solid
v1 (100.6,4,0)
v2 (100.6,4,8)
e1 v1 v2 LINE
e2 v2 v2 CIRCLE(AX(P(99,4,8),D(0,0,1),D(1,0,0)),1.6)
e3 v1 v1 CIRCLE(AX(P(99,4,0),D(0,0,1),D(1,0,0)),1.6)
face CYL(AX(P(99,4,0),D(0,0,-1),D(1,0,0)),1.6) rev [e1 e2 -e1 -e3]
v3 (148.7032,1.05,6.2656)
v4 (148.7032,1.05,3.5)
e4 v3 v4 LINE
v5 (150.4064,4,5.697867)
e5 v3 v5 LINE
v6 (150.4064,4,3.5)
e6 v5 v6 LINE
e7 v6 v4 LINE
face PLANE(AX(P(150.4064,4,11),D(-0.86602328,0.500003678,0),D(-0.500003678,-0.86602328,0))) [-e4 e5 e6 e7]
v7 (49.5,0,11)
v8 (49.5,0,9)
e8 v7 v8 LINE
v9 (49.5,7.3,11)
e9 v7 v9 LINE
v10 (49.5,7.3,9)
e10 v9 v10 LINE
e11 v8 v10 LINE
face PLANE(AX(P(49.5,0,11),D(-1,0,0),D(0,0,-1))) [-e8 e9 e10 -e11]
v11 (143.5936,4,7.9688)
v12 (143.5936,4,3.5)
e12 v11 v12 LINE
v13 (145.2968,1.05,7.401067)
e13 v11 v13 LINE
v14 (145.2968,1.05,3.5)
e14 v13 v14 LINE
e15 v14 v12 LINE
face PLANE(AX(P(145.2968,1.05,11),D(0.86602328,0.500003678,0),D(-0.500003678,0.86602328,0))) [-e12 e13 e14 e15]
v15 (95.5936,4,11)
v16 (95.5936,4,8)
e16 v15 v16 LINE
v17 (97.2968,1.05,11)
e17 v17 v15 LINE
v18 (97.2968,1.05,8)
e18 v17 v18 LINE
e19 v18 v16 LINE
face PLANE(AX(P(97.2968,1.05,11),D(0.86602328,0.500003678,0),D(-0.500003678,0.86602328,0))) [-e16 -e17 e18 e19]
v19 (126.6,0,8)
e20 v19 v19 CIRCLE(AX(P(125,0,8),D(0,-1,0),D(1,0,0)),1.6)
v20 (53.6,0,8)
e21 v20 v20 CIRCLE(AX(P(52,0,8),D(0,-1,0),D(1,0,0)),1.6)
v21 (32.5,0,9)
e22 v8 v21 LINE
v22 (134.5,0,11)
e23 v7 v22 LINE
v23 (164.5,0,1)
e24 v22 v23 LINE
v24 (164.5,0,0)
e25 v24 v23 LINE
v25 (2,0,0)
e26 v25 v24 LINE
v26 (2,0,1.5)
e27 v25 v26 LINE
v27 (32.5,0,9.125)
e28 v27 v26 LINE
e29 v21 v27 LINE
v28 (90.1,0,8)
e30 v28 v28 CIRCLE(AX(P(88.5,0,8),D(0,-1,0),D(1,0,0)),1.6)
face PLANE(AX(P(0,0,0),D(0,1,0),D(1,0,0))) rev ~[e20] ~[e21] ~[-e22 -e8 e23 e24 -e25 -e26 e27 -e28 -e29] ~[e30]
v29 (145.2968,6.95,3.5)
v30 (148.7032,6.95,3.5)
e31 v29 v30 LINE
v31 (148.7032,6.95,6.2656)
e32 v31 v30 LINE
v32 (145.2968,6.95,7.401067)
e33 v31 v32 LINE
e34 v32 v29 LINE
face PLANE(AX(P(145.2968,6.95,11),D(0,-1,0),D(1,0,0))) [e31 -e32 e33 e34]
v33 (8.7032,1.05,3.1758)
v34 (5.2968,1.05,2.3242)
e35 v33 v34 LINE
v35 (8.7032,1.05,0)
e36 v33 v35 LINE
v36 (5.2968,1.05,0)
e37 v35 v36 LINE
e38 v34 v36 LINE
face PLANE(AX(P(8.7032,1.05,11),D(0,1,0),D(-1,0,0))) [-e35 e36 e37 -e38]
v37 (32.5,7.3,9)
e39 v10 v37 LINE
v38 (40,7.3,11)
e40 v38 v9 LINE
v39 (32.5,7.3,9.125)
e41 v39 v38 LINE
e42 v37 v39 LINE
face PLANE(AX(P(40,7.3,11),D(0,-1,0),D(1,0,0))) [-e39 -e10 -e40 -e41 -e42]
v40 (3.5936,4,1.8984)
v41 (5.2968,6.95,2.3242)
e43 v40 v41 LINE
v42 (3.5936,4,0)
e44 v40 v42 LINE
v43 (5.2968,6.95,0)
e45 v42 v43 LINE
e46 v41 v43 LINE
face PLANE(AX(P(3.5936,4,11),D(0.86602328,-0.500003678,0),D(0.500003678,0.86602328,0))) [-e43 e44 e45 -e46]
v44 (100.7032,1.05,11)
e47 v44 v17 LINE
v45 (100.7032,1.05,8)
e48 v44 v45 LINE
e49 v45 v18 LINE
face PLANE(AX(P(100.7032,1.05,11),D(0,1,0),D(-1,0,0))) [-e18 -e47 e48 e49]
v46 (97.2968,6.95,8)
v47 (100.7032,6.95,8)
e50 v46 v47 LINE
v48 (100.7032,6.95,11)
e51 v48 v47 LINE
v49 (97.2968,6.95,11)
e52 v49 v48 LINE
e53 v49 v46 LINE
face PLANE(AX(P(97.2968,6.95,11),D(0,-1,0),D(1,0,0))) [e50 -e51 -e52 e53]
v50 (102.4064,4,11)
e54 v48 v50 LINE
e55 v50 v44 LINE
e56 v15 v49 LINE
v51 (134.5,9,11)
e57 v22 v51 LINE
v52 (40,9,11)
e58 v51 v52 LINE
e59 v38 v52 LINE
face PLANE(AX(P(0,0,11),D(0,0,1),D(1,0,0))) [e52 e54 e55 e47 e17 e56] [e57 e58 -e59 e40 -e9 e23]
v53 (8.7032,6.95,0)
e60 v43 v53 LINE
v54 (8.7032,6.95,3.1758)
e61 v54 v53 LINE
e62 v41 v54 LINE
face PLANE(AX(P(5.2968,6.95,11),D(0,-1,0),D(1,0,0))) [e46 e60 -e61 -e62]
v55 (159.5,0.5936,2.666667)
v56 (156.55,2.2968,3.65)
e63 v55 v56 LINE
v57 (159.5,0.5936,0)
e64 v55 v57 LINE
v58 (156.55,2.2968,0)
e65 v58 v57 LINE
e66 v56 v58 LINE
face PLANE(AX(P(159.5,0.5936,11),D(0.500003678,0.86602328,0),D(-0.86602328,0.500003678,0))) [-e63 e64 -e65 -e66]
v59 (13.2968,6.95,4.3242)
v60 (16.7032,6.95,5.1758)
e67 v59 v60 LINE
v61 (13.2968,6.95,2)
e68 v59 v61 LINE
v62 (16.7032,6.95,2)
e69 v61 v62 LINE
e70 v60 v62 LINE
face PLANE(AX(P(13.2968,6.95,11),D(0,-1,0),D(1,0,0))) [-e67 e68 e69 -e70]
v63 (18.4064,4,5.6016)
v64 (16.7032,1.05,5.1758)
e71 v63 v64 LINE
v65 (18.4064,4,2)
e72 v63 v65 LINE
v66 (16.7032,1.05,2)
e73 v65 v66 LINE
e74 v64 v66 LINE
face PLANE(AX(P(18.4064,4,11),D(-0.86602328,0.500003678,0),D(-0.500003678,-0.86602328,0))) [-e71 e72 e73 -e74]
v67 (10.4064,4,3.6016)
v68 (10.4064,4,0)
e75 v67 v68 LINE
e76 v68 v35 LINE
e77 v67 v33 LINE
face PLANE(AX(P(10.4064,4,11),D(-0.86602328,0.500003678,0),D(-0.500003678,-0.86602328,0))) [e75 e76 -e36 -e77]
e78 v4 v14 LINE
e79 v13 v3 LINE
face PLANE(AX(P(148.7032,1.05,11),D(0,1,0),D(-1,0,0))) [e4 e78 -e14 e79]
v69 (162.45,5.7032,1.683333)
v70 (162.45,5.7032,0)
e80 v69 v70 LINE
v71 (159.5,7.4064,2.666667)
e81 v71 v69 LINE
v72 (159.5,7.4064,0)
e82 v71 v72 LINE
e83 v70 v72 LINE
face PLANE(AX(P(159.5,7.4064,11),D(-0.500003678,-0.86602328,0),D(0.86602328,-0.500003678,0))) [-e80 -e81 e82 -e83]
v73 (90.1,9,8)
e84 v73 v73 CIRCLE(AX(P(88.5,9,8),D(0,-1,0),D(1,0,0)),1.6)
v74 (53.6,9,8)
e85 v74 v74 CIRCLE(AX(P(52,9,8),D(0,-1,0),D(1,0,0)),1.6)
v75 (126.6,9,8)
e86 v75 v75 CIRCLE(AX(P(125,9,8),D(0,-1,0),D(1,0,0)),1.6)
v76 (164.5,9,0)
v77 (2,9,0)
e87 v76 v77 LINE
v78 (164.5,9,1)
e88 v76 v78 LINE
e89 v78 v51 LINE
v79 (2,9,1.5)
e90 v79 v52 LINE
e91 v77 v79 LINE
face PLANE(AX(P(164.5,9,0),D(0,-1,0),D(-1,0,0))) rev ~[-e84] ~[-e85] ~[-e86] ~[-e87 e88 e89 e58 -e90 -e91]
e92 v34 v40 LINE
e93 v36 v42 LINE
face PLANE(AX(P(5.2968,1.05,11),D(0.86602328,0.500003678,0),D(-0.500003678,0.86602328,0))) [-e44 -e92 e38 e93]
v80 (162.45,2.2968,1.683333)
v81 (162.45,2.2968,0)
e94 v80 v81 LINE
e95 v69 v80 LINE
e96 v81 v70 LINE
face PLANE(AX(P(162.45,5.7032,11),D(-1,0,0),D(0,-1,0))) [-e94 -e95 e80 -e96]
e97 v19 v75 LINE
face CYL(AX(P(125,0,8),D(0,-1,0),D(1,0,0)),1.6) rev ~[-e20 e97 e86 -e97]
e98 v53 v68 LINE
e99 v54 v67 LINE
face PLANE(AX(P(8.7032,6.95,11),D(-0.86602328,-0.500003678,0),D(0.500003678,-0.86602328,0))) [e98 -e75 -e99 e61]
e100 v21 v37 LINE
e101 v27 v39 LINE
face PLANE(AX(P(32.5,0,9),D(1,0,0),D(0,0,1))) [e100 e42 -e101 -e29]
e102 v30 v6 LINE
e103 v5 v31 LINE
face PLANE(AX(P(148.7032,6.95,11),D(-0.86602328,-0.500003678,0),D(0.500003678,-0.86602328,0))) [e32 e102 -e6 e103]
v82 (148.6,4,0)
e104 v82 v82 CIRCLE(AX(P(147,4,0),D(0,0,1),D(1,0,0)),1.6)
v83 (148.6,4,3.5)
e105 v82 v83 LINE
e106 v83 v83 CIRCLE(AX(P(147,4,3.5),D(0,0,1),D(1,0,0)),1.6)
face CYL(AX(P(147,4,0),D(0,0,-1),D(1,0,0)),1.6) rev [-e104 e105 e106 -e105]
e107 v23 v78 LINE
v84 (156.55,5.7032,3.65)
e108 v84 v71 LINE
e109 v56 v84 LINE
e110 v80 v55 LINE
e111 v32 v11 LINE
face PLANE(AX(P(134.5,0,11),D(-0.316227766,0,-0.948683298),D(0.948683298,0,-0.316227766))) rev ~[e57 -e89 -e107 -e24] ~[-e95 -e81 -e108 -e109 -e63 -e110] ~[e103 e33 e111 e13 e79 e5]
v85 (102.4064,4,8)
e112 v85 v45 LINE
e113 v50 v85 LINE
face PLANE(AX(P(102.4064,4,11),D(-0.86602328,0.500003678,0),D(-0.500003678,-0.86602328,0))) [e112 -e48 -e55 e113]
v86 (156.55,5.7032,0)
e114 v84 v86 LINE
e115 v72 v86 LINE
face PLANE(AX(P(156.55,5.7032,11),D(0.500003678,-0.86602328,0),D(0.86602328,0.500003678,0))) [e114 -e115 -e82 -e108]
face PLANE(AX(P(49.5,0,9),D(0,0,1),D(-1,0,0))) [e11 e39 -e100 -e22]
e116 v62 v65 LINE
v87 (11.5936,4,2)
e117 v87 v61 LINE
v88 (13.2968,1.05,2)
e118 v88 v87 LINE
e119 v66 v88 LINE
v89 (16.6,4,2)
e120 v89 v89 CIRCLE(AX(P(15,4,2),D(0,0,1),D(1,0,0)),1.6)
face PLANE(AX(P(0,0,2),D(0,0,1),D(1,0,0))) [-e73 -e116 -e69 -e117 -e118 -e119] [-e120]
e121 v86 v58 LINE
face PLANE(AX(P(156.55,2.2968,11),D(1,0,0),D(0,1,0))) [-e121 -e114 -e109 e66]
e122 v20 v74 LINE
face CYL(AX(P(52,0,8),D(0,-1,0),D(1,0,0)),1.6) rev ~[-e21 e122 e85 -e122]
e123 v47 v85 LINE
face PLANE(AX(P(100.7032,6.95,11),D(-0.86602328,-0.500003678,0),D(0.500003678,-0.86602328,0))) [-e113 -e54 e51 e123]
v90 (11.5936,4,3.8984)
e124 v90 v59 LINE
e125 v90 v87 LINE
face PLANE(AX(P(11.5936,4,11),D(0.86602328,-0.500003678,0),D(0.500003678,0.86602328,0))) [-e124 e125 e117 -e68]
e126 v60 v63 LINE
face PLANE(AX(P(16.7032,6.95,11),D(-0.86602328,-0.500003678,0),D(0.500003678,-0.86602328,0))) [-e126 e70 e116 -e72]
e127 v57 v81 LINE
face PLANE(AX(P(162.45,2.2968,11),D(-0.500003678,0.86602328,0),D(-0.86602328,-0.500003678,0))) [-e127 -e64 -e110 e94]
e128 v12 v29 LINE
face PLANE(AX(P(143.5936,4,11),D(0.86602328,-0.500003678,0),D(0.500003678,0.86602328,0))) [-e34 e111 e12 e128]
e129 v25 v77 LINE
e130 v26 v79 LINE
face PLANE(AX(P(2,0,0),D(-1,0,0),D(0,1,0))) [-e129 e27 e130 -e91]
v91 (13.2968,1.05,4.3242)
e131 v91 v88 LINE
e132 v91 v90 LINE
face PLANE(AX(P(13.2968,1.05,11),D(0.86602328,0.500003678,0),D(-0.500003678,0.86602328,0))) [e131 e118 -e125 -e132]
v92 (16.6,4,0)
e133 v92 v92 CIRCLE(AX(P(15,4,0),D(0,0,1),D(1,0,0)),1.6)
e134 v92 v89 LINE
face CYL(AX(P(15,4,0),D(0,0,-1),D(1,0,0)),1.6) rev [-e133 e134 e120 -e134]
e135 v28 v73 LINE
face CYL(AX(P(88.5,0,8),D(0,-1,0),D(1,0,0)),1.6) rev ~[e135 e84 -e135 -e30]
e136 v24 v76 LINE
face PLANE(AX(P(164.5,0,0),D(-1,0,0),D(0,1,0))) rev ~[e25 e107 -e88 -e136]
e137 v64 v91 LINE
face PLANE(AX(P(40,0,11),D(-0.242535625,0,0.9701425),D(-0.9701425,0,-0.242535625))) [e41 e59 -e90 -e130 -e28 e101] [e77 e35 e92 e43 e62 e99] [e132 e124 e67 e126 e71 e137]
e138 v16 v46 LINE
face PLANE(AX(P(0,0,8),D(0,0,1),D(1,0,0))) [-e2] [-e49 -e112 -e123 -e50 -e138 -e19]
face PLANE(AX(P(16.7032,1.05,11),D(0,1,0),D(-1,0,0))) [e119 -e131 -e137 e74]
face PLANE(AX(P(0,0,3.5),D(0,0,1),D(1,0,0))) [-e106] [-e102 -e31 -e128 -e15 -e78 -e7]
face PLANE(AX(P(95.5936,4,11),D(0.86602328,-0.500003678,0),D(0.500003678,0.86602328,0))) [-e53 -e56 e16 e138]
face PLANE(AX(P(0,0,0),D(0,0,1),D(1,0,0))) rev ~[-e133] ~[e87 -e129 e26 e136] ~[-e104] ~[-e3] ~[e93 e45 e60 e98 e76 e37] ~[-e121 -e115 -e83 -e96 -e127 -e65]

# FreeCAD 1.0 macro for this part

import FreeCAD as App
import Part
import Sketcher

V = App.Vector
Q = App.Units.Quantity

doc = App.newDocument("Part")
body = doc.addObject("PartDesign::Body", "Body")

sketch1 = doc.addObject("Sketcher::SketchObject", "Sketch")
body.addObject(sketch1)
sketch1.AttachmentSupport = (doc.XY_Plane, [""])
sketch1.MapMode = "FlatFace"
sketch1.addGeometry(Part.LineSegment(V(0, 9, 0), V(0, 0, 0)), False)
sketch1.addGeometry(Part.LineSegment(V(0, 0, 0), V(164.5, 0, 0)), False)
sketch1.addGeometry(Part.LineSegment(V(164.5, 0, 0), V(164.5, 9, 0)), False)
sketch1.addGeometry(Part.LineSegment(V(164.5, 9, 0), V(0, 9, 0)), False)
sketch1.addGeometry(Part.Circle(V(7, 4, 0), V(0, 0, 1), 1.6), False)
sketch1.addGeometry(Part.Circle(V(15, 4, 0), V(0, 0, 1), 1.6), False)
sketch1.addGeometry(Part.Circle(V(99, 4, 0), V(0, 0, 1), 1.6), False)
sketch1.addGeometry(Part.Circle(V(147, 4, 0), V(0, 0, 1), 1.6), False)
sketch1.addGeometry(Part.Circle(V(159.5, 4, 0), V(0, 0, 1), 1.6), False)
sketch1.addConstraint(Sketcher.Constraint("Coincident", 0, 2, 1, 1))
sketch1.addConstraint(Sketcher.Constraint("Coincident", 1, 2, 2, 1))
sketch1.addConstraint(Sketcher.Constraint("Coincident", 2, 2, 3, 1))
sketch1.addConstraint(Sketcher.Constraint("Coincident", 3, 2, 0, 1))
sketch1.addConstraint(Sketcher.Constraint("Vertical", 0))
sketch1.addConstraint(Sketcher.Constraint("Horizontal", 1))
sketch1.addConstraint(Sketcher.Constraint("Vertical", 2))
sketch1.addConstraint(Sketcher.Constraint("Horizontal", 3))
sketch1.addConstraint(Sketcher.Constraint("Coincident", 0, 2, -1, 1))
sketch1.addConstraint(Sketcher.Constraint("Equal", 4, 5))
sketch1.addConstraint(Sketcher.Constraint("Equal", 5, 6))
sketch1.addConstraint(Sketcher.Constraint("Equal", 6, 7))
sketch1.addConstraint(Sketcher.Constraint("Equal", 7, 8))
sketch1.addConstraint(Sketcher.Constraint("Horizontal", 4, 3, 5, 3))
sketch1.addConstraint(Sketcher.Constraint("Horizontal", 5, 3, 6, 3))
sketch1.addConstraint(Sketcher.Constraint("Horizontal", 6, 3, 7, 3))
sketch1.addConstraint(Sketcher.Constraint("Horizontal", 7, 3, 8, 3))
sketch1.addConstraint(Sketcher.Constraint("Diameter", 4, 3.2))
sketch1.addConstraint(Sketcher.Constraint("DistanceY", 0, 2, 0, 1, 9.0))
sketch1.addConstraint(Sketcher.Constraint("DistanceY", -1, 1, 4, 3, 4.0))
sketch1.addConstraint(Sketcher.Constraint("DistanceX", -1, 1, 5, 3, 15.0))
sketch1.addConstraint(Sketcher.Constraint("DistanceX", 4, 3, 5, 3, 8.0))
sketch1.addConstraint(Sketcher.Constraint("DistanceX", 6, 3, 7, 3, 48.0))
sketch1.addConstraint(Sketcher.Constraint("DistanceX", 8, 3, 1, 2, 5.0))
sketch1.addConstraint(Sketcher.Constraint("DistanceX", 7, 3, 8, 3, 12.5))
sketch1.addConstraint(Sketcher.Constraint("DistanceX", 1, 1, 1, 2, 164.5))
pad1 = doc.addObject("PartDesign::Pad", "Pad")
body.addObject(pad1)
pad1.Profile = sketch1
pad1.Length = 11

sketch2 = doc.addObject("Sketcher::SketchObject", "Sketch001")
body.addObject(sketch2)
sketch2.AttachmentSupport = (doc.XZ_Plane, [""])
sketch2.MapMode = "FlatFace"
sketch2.addGeometry(Part.Circle(V(52, 8, 0), V(0, 0, 1), 1.6), False)
sketch2.addGeometry(Part.Circle(V(125, 8, 0), V(0, 0, 1), 1.6), False)
sketch2.addGeometry(Part.Circle(V(88.5, 8, 0), V(0, 0, 1), 1.6), False)
sketch2.addConstraint(Sketcher.Constraint("Equal", 0, 1))
sketch2.addConstraint(Sketcher.Constraint("Equal", 1, 2))
sketch2.addConstraint(Sketcher.Constraint("Horizontal", 0, 3, 1, 3))
sketch2.addConstraint(Sketcher.Constraint("Horizontal", 1, 3, 2, 3))
sketch2.addConstraint(Sketcher.Constraint("Diameter", 0, 3.2))
sketch2.addConstraint(Sketcher.Constraint("DistanceX", -1, 1, 0, 3, 52.0))
sketch2.addConstraint(Sketcher.Constraint("DistanceY", -1, 1, 0, 3, 8.0))
sketch2.addConstraint(Sketcher.Constraint("DistanceX", 0, 3, 1, 3, 73.0))
sketch2.addConstraint(Sketcher.Constraint("DistanceX", 0, 3, 2, 3, 36.5))
pocket1 = doc.addObject("PartDesign::Pocket", "Pocket")
body.addObject(pocket1)
pocket1.Profile = sketch2
pocket1.Type = "UpToFirst"

sketch3 = doc.addObject("Sketcher::SketchObject", "Sketch002")
body.addObject(sketch3)
sketch3.AttachmentSupport = (doc.XZ_Plane, [""])
sketch3.MapMode = "FlatFace"
sketch3.addGeometry(Part.LineSegment(V(40, 11, 0), V(0, 11, 0)), False)
sketch3.addGeometry(Part.LineSegment(V(0, 11, 0), V(0, 1, 0)), False)
sketch3.addGeometry(Part.LineSegment(V(0, 1, 0), V(40, 11, 0)), False)
sketch3.addConstraint(Sketcher.Constraint("Coincident", 0, 2, 1, 1))
sketch3.addConstraint(Sketcher.Constraint("Coincident", 1, 2, 2, 1))
sketch3.addConstraint(Sketcher.Constraint("Coincident", 2, 2, 0, 1))
sketch3.addConstraint(Sketcher.Constraint("Horizontal", 0))
sketch3.addConstraint(Sketcher.Constraint("Vertical", 1))
sketch3.addConstraint(Sketcher.Constraint("PointOnObject", 0, 2, -2))
sketch3.addConstraint(Sketcher.Constraint("DistanceX", 0, 2, 0, 1, 40.0))
sketch3.addConstraint(Sketcher.Constraint("DistanceY", 1, 2, 1, 1, 10.0))
sketch3.addConstraint(Sketcher.Constraint("DistanceY", -1, 1, 0, 2, 11.0))
pocket2 = doc.addObject("PartDesign::Pocket", "Pocket001")
body.addObject(pocket2)
pocket2.Profile = sketch3
pocket2.Type = "UpToFirst"

sketch4 = doc.addObject("Sketcher::SketchObject", "Sketch003")
body.addObject(sketch4)
sketch4.AttachmentSupport = (doc.XZ_Plane, [""])
sketch4.MapMode = "FlatFace"
sketch4.addGeometry(Part.LineSegment(V(134, 11, 0), V(164, 1, 0)), False)
sketch4.addGeometry(Part.LineSegment(V(164, 1, 0), V(164, 11, 0)), False)
sketch4.addGeometry(Part.LineSegment(V(164, 11, 0), V(134, 11, 0)), False)
sketch4.addConstraint(Sketcher.Constraint("Coincident", 0, 2, 1, 1))
sketch4.addConstraint(Sketcher.Constraint("Coincident", 1, 2, 2, 1))
sketch4.addConstraint(Sketcher.Constraint("Coincident", 2, 2, 0, 1))
sketch4.addConstraint(Sketcher.Constraint("Vertical", 1))
sketch4.addConstraint(Sketcher.Constraint("Horizontal", 2))
sketch4.addConstraint(Sketcher.Constraint("DistanceX", 2, 2, 2, 1, 30.0))
sketch4.addConstraint(Sketcher.Constraint("DistanceY", 1, 1, 1, 2, 10.0))
sketch4.addConstraint(Sketcher.Constraint("DistanceY", -1, 1, 0, 2, 1.0))
sketch4.addConstraint(Sketcher.Constraint("DistanceX", -1, 1, 0, 2, 164.5))
pocket3 = doc.addObject("PartDesign::Pocket", "Pocket002")
body.addObject(pocket3)
pocket3.Profile = sketch4
pocket3.Type = "UpToFirst"

sketch5 = doc.addObject("Sketcher::SketchObject", "Sketch004")
body.addObject(sketch5)
sketch5.AttachmentSupport = (doc.XY_Plane, [""])
sketch5.MapMode = "FlatFace"
sketch5.AttachmentOffset = App.Placement(V(0, 0, 11), App.Rotation())
sketch5.addGeometry(Part.LineSegment(V(97.3, 7, 0), V(95.6, 4, 0)), False)
sketch5.addGeometry(Part.LineSegment(V(95.6, 4, 0), V(97.3, 1.1, 0)), False)
sketch5.addGeometry(Part.LineSegment(V(97.3, 1.1, 0), V(100.7, 1.1, 0)), False)
sketch5.addGeometry(Part.LineSegment(V(100.7, 1.1, 0), V(102.4, 4, 0)), False)
sketch5.addGeometry(Part.LineSegment(V(102.4, 4, 0), V(100.7, 7, 0)), False)
sketch5.addGeometry(Part.LineSegment(V(100.7, 7, 0), V(97.3, 7, 0)), False)
sketch5.addGeometry(Part.Circle(V(99, 4, 0), V(0, 0, 1), 1.6), False)
sketch5.addConstraint(Sketcher.Constraint("Coincident", 0, 2, 1, 1))
sketch5.addConstraint(Sketcher.Constraint("Coincident", 1, 2, 2, 1))
sketch5.addConstraint(Sketcher.Constraint("Coincident", 2, 2, 3, 1))
sketch5.addConstraint(Sketcher.Constraint("Coincident", 3, 2, 4, 1))
sketch5.addConstraint(Sketcher.Constraint("Coincident", 4, 2, 5, 1))
sketch5.addConstraint(Sketcher.Constraint("Coincident", 5, 2, 0, 1))
sketch5.addConstraint(Sketcher.Constraint("Horizontal", 2))
sketch5.addConstraint(Sketcher.Constraint("Horizontal", 5))
sketch5.addConstraint(Sketcher.Constraint("Parallel", 0, 3))
sketch5.addConstraint(Sketcher.Constraint("Parallel", 1, 4))
sketch5.addConstraint(Sketcher.Constraint("Horizontal", 6, 3, 0, 2))
sketch5.addConstraint(Sketcher.Constraint("Horizontal", 0, 2, 3, 2))
sketch5.addConstraint(Sketcher.Constraint("Vertical", 2, 2, 4, 2))
sketch5.addConstraint(Sketcher.Constraint("Vertical", 1, 2, 5, 2))
sketch5.addConstraint(Sketcher.Constraint("Diameter", 6, 3.2))
sketch5.addConstraint(Sketcher.Constraint("DistanceY", 2, 2, 4, 2, 5.9))
sketch5.addConstraint(Sketcher.Constraint("Angle", 0, Q("-120.0002 deg")))
sketch5.addConstraint(Sketcher.Constraint("DistanceX", -1, 1, 6, 3, 99.0))
sketch5.addConstraint(Sketcher.Constraint("DistanceY", -1, 1, 6, 3, 4.0))
sketch5.addConstraint(Sketcher.Constraint("DistanceX", 2, 1, 2, 2, 3.4064))
sketch5.addConstraint(Sketcher.Constraint("DistanceX", -1, 1, 0, 2, 95.5936))
pocket4 = doc.addObject("PartDesign::Pocket", "Pocket003")
body.addObject(pocket4)
pocket4.Profile = sketch5
pocket4.Length = 3

sketch6 = doc.addObject("Sketcher::SketchObject", "Sketch005")
body.addObject(sketch6)
sketch6.AttachmentSupport = (doc.XY_Plane, [""])
sketch6.MapMode = "FlatFace"
sketch6.AttachmentOffset = App.Placement(V(0, 0, 11), App.Rotation())
sketch6.addGeometry(Part.LineSegment(V(148.7, 1.1, 0), V(150.4, 4, 0)), False)
sketch6.addGeometry(Part.LineSegment(V(150.4, 4, 0), V(148.7, 7, 0)), False)
sketch6.addGeometry(Part.LineSegment(V(148.7, 7, 0), V(145.3, 7, 0)), False)
sketch6.addGeometry(Part.LineSegment(V(145.3, 7, 0), V(143.6, 4, 0)), False)
sketch6.addGeometry(Part.LineSegment(V(143.6, 4, 0), V(145.3, 1.1, 0)), False)
sketch6.addGeometry(Part.LineSegment(V(145.3, 1.1, 0), V(148.7, 1.1, 0)), False)
sketch6.addGeometry(Part.Circle(V(147, 4, 0), V(0, 0, 1), 1.6), False)
sketch6.addConstraint(Sketcher.Constraint("Coincident", 0, 2, 1, 1))
sketch6.addConstraint(Sketcher.Constraint("Coincident", 1, 2, 2, 1))
sketch6.addConstraint(Sketcher.Constraint("Coincident", 2, 2, 3, 1))
sketch6.addConstraint(Sketcher.Constraint("Coincident", 3, 2, 4, 1))
sketch6.addConstraint(Sketcher.Constraint("Coincident", 4, 2, 5, 1))
sketch6.addConstraint(Sketcher.Constraint("Coincident", 5, 2, 0, 1))
sketch6.addConstraint(Sketcher.Constraint("Horizontal", 2))
sketch6.addConstraint(Sketcher.Constraint("Horizontal", 5))
sketch6.addConstraint(Sketcher.Constraint("Parallel", 0, 3))
sketch6.addConstraint(Sketcher.Constraint("Parallel", 1, 4))
sketch6.addConstraint(Sketcher.Constraint("Horizontal", 6, 3, 0, 2))
sketch6.addConstraint(Sketcher.Constraint("Horizontal", 0, 2, 3, 2))
sketch6.addConstraint(Sketcher.Constraint("Vertical", 2, 2, 4, 2))
sketch6.addConstraint(Sketcher.Constraint("Vertical", 1, 2, 5, 2))
sketch6.addConstraint(Sketcher.Constraint("Diameter", 6, 3.2))
sketch6.addConstraint(Sketcher.Constraint("DistanceY", 4, 2, 2, 2, 5.9))
sketch6.addConstraint(Sketcher.Constraint("Angle", 0, Q("59.9998 deg")))
sketch6.addConstraint(Sketcher.Constraint("DistanceX", -1, 1, 6, 3, 147.0))
sketch6.addConstraint(Sketcher.Constraint("DistanceY", -1, 1, 6, 3, 4.0))
sketch6.addConstraint(Sketcher.Constraint("DistanceX", 2, 2, 2, 1, 3.4064))
sketch6.addConstraint(Sketcher.Constraint("DistanceX", -1, 1, 0, 2, 150.4064))
pocket5 = doc.addObject("PartDesign::Pocket", "Pocket004")
body.addObject(pocket5)
pocket5.Profile = sketch6
pocket5.Length = 7.5

sketch7 = doc.addObject("Sketcher::SketchObject", "Sketch006")
body.addObject(sketch7)
sketch7.AttachmentSupport = (doc.XY_Plane, [""])
sketch7.MapMode = "FlatFace"
sketch7.AttachmentOffset = App.Placement(V(0, 0, 11), App.Rotation())
sketch7.addGeometry(Part.LineSegment(V(162.4, 2.3, 0), V(162.4, 5.7, 0)), False)
sketch7.addGeometry(Part.LineSegment(V(162.4, 5.7, 0), V(159.5, 7.4, 0)), False)
sketch7.addGeometry(Part.LineSegment(V(159.5, 7.4, 0), V(156.6, 5.7, 0)), False)
sketch7.addGeometry(Part.LineSegment(V(156.6, 5.7, 0), V(156.6, 2.3, 0)), False)
sketch7.addGeometry(Part.LineSegment(V(156.6, 2.3, 0), V(159.5, 0.6, 0)), False)
sketch7.addGeometry(Part.LineSegment(V(159.5, 0.6, 0), V(162.4, 2.3, 0)), False)
sketch7.addConstraint(Sketcher.Constraint("Coincident", 0, 2, 1, 1))
sketch7.addConstraint(Sketcher.Constraint("Coincident", 1, 2, 2, 1))
sketch7.addConstraint(Sketcher.Constraint("Coincident", 2, 2, 3, 1))
sketch7.addConstraint(Sketcher.Constraint("Coincident", 3, 2, 4, 1))
sketch7.addConstraint(Sketcher.Constraint("Coincident", 4, 2, 5, 1))
sketch7.addConstraint(Sketcher.Constraint("Coincident", 5, 2, 0, 1))
sketch7.addConstraint(Sketcher.Constraint("Vertical", 0))
sketch7.addConstraint(Sketcher.Constraint("Vertical", 3))
sketch7.addConstraint(Sketcher.Constraint("Parallel", 1, 4))
sketch7.addConstraint(Sketcher.Constraint("Parallel", 2, 5))
sketch7.addConstraint(Sketcher.Constraint("Horizontal", 0, 2, 2, 2))
sketch7.addConstraint(Sketcher.Constraint("Horizontal", 3, 2, 5, 2))
sketch7.addConstraint(Sketcher.Constraint("Vertical", 1, 2, 4, 2))
sketch7.addConstraint(Sketcher.Constraint("DistanceX", 2, 2, 0, 2, 5.9))
sketch7.addConstraint(Sketcher.Constraint("Angle", 1, Q("149.9998 deg")))
sketch7.addConstraint(Sketcher.Constraint("DistanceX", -1, 1, 1, 2, 159.5))
sketch7.addConstraint(Sketcher.Constraint("DistanceY", 0, 1, 0, 2, 3.4064))
sketch7.addConstraint(Sketcher.Constraint("DistanceY", -1, 1, 0, 2, 5.7032))
pocket6 = doc.addObject("PartDesign::Pocket", "Pocket005")
body.addObject(pocket6)
pocket6.Profile = sketch7
pocket6.Length = 11

sketch8 = doc.addObject("Sketcher::SketchObject", "Sketch007")
body.addObject(sketch8)
sketch8.AttachmentSupport = (doc.XY_Plane, [""])
sketch8.MapMode = "FlatFace"
sketch8.AttachmentOffset = App.Placement(V(0, 0, 11), App.Rotation())
sketch8.addGeometry(Part.LineSegment(V(8.7, 1.1, 0), V(10.4, 4, 0)), False)
sketch8.addGeometry(Part.LineSegment(V(10.4, 4, 0), V(8.7, 7, 0)), False)
sketch8.addGeometry(Part.LineSegment(V(8.7, 7, 0), V(5.3, 7, 0)), False)
sketch8.addGeometry(Part.LineSegment(V(5.3, 7, 0), V(3.6, 4, 0)), False)
sketch8.addGeometry(Part.LineSegment(V(3.6, 4, 0), V(5.3, 1.1, 0)), False)
sketch8.addGeometry(Part.LineSegment(V(5.3, 1.1, 0), V(8.7, 1.1, 0)), False)
sketch8.addGeometry(Part.Circle(V(7, 4, 0), V(0, 0, 1), 1.6), False)
sketch8.addConstraint(Sketcher.Constraint("Coincident", 0, 2, 1, 1))
sketch8.addConstraint(Sketcher.Constraint("Coincident", 1, 2, 2, 1))
sketch8.addConstraint(Sketcher.Constraint("Coincident", 2, 2, 3, 1))
sketch8.addConstraint(Sketcher.Constraint("Coincident", 3, 2, 4, 1))
sketch8.addConstraint(Sketcher.Constraint("Coincident", 4, 2, 5, 1))
sketch8.addConstraint(Sketcher.Constraint("Coincident", 5, 2, 0, 1))
sketch8.addConstraint(Sketcher.Constraint("Horizontal", 2))
sketch8.addConstraint(Sketcher.Constraint("Horizontal", 5))
sketch8.addConstraint(Sketcher.Constraint("Parallel", 0, 3))
sketch8.addConstraint(Sketcher.Constraint("Parallel", 1, 4))
sketch8.addConstraint(Sketcher.Constraint("Horizontal", 6, 3, 0, 2))
sketch8.addConstraint(Sketcher.Constraint("Horizontal", 0, 2, 3, 2))
sketch8.addConstraint(Sketcher.Constraint("Vertical", 2, 2, 4, 2))
sketch8.addConstraint(Sketcher.Constraint("Vertical", 1, 2, 5, 2))
sketch8.addConstraint(Sketcher.Constraint("Diameter", 6, 3.2))
sketch8.addConstraint(Sketcher.Constraint("DistanceY", 4, 2, 2, 2, 5.9))
sketch8.addConstraint(Sketcher.Constraint("Angle", 0, Q("59.9998 deg")))
sketch8.addConstraint(Sketcher.Constraint("DistanceX", -1, 1, 6, 3, 7.0))
sketch8.addConstraint(Sketcher.Constraint("DistanceY", -1, 1, 6, 3, 4.0))
sketch8.addConstraint(Sketcher.Constraint("DistanceX", 2, 2, 2, 1, 3.4064))
sketch8.addConstraint(Sketcher.Constraint("DistanceX", -1, 1, 0, 2, 10.4064))
pocket7 = doc.addObject("PartDesign::Pocket", "Pocket006")
body.addObject(pocket7)
pocket7.Profile = sketch8
pocket7.Type = "ThroughAll"

sketch9 = doc.addObject("Sketcher::SketchObject", "Sketch008")
body.addObject(sketch9)
sketch9.AttachmentSupport = (doc.XY_Plane, [""])
sketch9.MapMode = "FlatFace"
sketch9.AttachmentOffset = App.Placement(V(0, 0, 11), App.Rotation())
sketch9.addGeometry(Part.LineSegment(V(16.7, 1.1, 0), V(18.4, 4, 0)), False)
sketch9.addGeometry(Part.LineSegment(V(18.4, 4, 0), V(16.7, 7, 0)), False)
sketch9.addGeometry(Part.LineSegment(V(16.7, 7, 0), V(13.3, 7, 0)), False)
sketch9.addGeometry(Part.LineSegment(V(13.3, 7, 0), V(11.6, 4, 0)), False)
sketch9.addGeometry(Part.LineSegment(V(11.6, 4, 0), V(13.3, 1.1, 0)), False)
sketch9.addGeometry(Part.LineSegment(V(13.3, 1.1, 0), V(16.7, 1.1, 0)), False)
sketch9.addGeometry(Part.Circle(V(15, 4, 0), V(0, 0, 1), 1.6), False)
sketch9.addConstraint(Sketcher.Constraint("Coincident", 0, 2, 1, 1))
sketch9.addConstraint(Sketcher.Constraint("Coincident", 1, 2, 2, 1))
sketch9.addConstraint(Sketcher.Constraint("Coincident", 2, 2, 3, 1))
sketch9.addConstraint(Sketcher.Constraint("Coincident", 3, 2, 4, 1))
sketch9.addConstraint(Sketcher.Constraint("Coincident", 4, 2, 5, 1))
sketch9.addConstraint(Sketcher.Constraint("Coincident", 5, 2, 0, 1))
sketch9.addConstraint(Sketcher.Constraint("Horizontal", 2))
sketch9.addConstraint(Sketcher.Constraint("Horizontal", 5))
sketch9.addConstraint(Sketcher.Constraint("Parallel", 0, 3))
sketch9.addConstraint(Sketcher.Constraint("Parallel", 1, 4))
sketch9.addConstraint(Sketcher.Constraint("Horizontal", 6, 3, 0, 2))
sketch9.addConstraint(Sketcher.Constraint("Horizontal", 0, 2, 3, 2))
sketch9.addConstraint(Sketcher.Constraint("Vertical", 2, 2, 4, 2))
sketch9.addConstraint(Sketcher.Constraint("Vertical", 1, 2, 5, 2))
sketch9.addConstraint(Sketcher.Constraint("Diameter", 6, 3.2))
sketch9.addConstraint(Sketcher.Constraint("DistanceY", 4, 2, 2, 2, 5.9))
sketch9.addConstraint(Sketcher.Constraint("Angle", 0, Q("59.9998 deg")))
sketch9.addConstraint(Sketcher.Constraint("DistanceX", -1, 1, 6, 3, 15.0))
sketch9.addConstraint(Sketcher.Constraint("DistanceY", -1, 1, 6, 3, 4.0))
sketch9.addConstraint(Sketcher.Constraint("DistanceX", 2, 2, 2, 1, 3.4064))
sketch9.addConstraint(Sketcher.Constraint("DistanceX", -1, 1, 0, 2, 18.4064))
pocket8 = doc.addObject("PartDesign::Pocket", "Pocket007")
body.addObject(pocket8)
pocket8.Profile = sketch9
pocket8.Length = 9

sketch10 = doc.addObject("Sketcher::SketchObject", "Sketch009")
body.addObject(sketch10)
sketch10.AttachmentSupport = (doc.XY_Plane, [""])
sketch10.MapMode = "FlatFace"
sketch10.addGeometry(Part.LineSegment(V(0, 9, 0), V(2, 9, 0)), False)
sketch10.addGeometry(Part.LineSegment(V(2, 9, 0), V(2, 0, 0)), False)
sketch10.addGeometry(Part.LineSegment(V(2, 0, 0), V(0, 0, 0)), False)
sketch10.addGeometry(Part.LineSegment(V(0, 0, 0), V(0, 9, 0)), False)
sketch10.addConstraint(Sketcher.Constraint("Coincident", 0, 2, 1, 1))
sketch10.addConstraint(Sketcher.Constraint("Coincident", 1, 2, 2, 1))
sketch10.addConstraint(Sketcher.Constraint("Coincident", 2, 2, 3, 1))
sketch10.addConstraint(Sketcher.Constraint("Coincident", 3, 2, 0, 1))
sketch10.addConstraint(Sketcher.Constraint("Horizontal", 0))
sketch10.addConstraint(Sketcher.Constraint("Vertical", 1))
sketch10.addConstraint(Sketcher.Constraint("Horizontal", 2))
sketch10.addConstraint(Sketcher.Constraint("Vertical", 3))
sketch10.addConstraint(Sketcher.Constraint("Coincident", 2, 2, -1, 1))
sketch10.addConstraint(Sketcher.Constraint("DistanceX", 0, 1, 0, 2, 2.0))
sketch10.addConstraint(Sketcher.Constraint("DistanceY", 1, 2, 1, 1, 9.0))
pocket9 = doc.addObject("PartDesign::Pocket", "Pocket008")
body.addObject(pocket9)
pocket9.Profile = sketch10
pocket9.Type = "UpToFirst"
pocket9.Reversed = True

sketch11 = doc.addObject("Sketcher::SketchObject", "Sketch010")
body.addObject(sketch11)
sketch11.AttachmentSupport = (doc.XZ_Plane, [""])
sketch11.MapMode = "FlatFace"
sketch11.addGeometry(Part.LineSegment(V(49.5, 9, 0), V(49.5, 11, 0)), False)
sketch11.addGeometry(Part.LineSegment(V(49.5, 11, 0), V(32.5, 11, 0)), False)
sketch11.addGeometry(Part.LineSegment(V(32.5, 11, 0), V(32.5, 9, 0)), False)
sketch11.addGeometry(Part.LineSegment(V(32.5, 9, 0), V(49.5, 9, 0)), False)
sketch11.addConstraint(Sketcher.Constraint("Coincident", 0, 2, 1, 1))
sketch11.addConstraint(Sketcher.Constraint("Coincident", 1, 2, 2, 1))
sketch11.addConstraint(Sketcher.Constraint("Coincident", 2, 2, 3, 1))
sketch11.addConstraint(Sketcher.Constraint("Coincident", 3, 2, 0, 1))
sketch11.addConstraint(Sketcher.Constraint("Vertical", 0))
sketch11.addConstraint(Sketcher.Constraint("Horizontal", 1))
sketch11.addConstraint(Sketcher.Constraint("Vertical", 2))
sketch11.addConstraint(Sketcher.Constraint("Horizontal", 3))
sketch11.addConstraint(Sketcher.Constraint("DistanceX", 1, 2, 1, 1, 17.0))
sketch11.addConstraint(Sketcher.Constraint("DistanceY", 0, 1, 0, 2, 2.0))
sketch11.addConstraint(Sketcher.Constraint("DistanceY", -1, 1, 0, 2, 11.0))
sketch11.addConstraint(Sketcher.Constraint("DistanceX", -1, 1, 0, 2, 49.5))
pocket10 = doc.addObject("PartDesign::Pocket", "Pocket009")
body.addObject(pocket10)
pocket10.Profile = sketch11
pocket10.Length = 7.3

doc.recompute()
